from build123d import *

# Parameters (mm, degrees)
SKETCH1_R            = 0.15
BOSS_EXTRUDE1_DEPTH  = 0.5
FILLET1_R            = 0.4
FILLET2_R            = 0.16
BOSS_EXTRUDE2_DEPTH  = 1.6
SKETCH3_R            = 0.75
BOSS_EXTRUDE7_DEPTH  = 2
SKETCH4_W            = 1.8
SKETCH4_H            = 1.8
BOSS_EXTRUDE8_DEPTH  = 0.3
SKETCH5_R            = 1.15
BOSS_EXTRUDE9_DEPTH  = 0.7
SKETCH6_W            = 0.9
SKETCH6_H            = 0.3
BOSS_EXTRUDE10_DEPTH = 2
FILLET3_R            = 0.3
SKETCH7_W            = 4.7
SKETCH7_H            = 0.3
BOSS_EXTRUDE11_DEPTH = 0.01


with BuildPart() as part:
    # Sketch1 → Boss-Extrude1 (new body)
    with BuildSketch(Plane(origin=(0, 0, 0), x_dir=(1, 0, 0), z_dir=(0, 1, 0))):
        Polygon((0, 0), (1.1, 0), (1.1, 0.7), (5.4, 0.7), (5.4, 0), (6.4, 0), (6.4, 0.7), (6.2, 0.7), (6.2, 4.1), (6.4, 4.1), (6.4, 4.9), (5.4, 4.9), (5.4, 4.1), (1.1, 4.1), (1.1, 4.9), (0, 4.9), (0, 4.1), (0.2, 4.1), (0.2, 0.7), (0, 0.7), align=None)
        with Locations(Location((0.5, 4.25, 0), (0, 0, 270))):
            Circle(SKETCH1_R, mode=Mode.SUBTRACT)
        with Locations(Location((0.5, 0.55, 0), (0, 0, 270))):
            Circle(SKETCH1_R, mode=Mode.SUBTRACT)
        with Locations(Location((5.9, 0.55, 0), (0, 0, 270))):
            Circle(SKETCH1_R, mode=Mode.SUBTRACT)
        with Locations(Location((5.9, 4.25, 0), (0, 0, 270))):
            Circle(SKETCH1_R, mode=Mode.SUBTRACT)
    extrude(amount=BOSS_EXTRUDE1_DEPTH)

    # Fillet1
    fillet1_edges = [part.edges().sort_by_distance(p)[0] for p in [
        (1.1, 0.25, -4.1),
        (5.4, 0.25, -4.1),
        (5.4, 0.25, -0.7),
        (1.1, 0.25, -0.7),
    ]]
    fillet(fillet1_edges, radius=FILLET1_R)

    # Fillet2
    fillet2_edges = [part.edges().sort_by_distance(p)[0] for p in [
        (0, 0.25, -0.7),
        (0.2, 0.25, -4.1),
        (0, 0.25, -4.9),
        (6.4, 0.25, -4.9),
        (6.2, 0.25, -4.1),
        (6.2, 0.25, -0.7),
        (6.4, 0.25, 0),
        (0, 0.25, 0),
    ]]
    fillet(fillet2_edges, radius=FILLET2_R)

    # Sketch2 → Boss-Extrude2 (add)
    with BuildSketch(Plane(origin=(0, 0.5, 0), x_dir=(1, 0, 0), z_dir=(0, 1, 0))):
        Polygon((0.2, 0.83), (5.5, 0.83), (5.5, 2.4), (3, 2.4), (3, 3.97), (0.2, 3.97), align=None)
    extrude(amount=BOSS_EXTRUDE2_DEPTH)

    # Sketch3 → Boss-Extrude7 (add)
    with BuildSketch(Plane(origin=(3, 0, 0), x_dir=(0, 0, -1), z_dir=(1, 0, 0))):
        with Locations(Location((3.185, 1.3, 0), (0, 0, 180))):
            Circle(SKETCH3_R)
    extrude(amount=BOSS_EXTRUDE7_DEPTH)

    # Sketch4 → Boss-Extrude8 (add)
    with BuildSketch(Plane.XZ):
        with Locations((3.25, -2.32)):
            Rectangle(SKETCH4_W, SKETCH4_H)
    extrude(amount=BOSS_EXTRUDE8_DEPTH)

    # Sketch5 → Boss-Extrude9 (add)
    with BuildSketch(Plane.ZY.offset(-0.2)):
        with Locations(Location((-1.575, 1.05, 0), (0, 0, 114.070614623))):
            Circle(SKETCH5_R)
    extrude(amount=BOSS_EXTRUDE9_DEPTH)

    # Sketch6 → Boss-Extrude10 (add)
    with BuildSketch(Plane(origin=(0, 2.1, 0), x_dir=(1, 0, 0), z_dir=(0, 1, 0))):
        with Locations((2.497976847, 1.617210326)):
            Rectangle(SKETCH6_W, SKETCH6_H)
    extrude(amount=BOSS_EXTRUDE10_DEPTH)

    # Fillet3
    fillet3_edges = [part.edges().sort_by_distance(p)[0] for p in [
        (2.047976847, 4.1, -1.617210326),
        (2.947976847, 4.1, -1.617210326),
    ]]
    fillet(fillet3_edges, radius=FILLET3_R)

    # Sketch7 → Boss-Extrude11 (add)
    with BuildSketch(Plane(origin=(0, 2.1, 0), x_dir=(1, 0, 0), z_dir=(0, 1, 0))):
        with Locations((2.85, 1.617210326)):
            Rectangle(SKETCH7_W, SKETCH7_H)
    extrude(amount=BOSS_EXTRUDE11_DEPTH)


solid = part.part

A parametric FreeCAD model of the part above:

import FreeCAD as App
import Part
import Sketcher

V = App.Vector
Q = App.Units.Quantity


def edges_at(feature, points):
    """Names of the edges that pass closest to the given points."""
    edges = feature.Shape.Edges
    near = lambda p: min(range(len(edges)), key=lambda i: edges[i].distToShape(Part.Vertex(*p))[0])
    return sorted({f"Edge{near(p) + 1}" for p in points})

doc = App.newDocument("Part")
body = doc.addObject("PartDesign::Body", "Body")

sketch1 = doc.addObject("Sketcher::SketchObject", "Sketch")
body.addObject(sketch1)
sketch1.AttachmentSupport = (doc.XZ_Plane, [""])
sketch1.MapMode = "FlatFace"
sketch1.addGeometry([
    Part.LineSegment(V(0, 0, 0), V(1.1, 0, 0)),
    Part.LineSegment(V(1.1, 0, 0), V(1.1, -0.7, 0)),
    Part.LineSegment(V(1.1, -0.7, 0), V(5.4, -0.7, 0)),
    Part.LineSegment(V(5.4, -0.7, 0), V(5.4, 0, 0)),
    Part.LineSegment(V(5.4, 0, 0), V(6.4, 0, 0)),
    Part.LineSegment(V(6.4, 0, 0), V(6.4, -0.7, 0)),
    Part.LineSegment(V(6.4, -0.7, 0), V(6.2, -0.7, 0)),
    Part.LineSegment(V(6.2, -0.7, 0), V(6.2, -4.1, 0)),
    Part.LineSegment(V(6.2, -4.1, 0), V(6.4, -4.1, 0)),
    Part.LineSegment(V(6.4, -4.1, 0), V(6.4, -4.9, 0)),
    Part.LineSegment(V(6.4, -4.9, 0), V(5.4, -4.9, 0)),
    Part.LineSegment(V(5.4, -4.9, 0), V(5.4, -4.1, 0)),
    Part.LineSegment(V(5.4, -4.1, 0), V(1.1, -4.1, 0)),
    Part.LineSegment(V(1.1, -4.1, 0), V(1.1, -4.9, 0)),
    Part.LineSegment(V(1.1, -4.9, 0), V(0, -4.9, 0)),
    Part.LineSegment(V(0, -4.9, 0), V(0, -4.1, 0)),
    Part.LineSegment(V(0, -4.1, 0), V(0.2, -4.1, 0)),
    Part.LineSegment(V(0.2, -4.1, 0), V(0.2, -0.7, 0)),
    Part.LineSegment(V(0.2, -0.7, 0), V(0, -0.7, 0)),
    Part.LineSegment(V(0, -0.7, 0), V(0, 0, 0)),
    Part.Circle(V(0.5, -0.55, 0), V(0, 0, 1), 0.15),
    Part.Circle(V(5.9, -0.55, 0), V(0, 0, 1), 0.15),
    Part.Circle(V(0.5, -4.25, 0), V(0, 0, 1), 0.15),
    Part.Circle(V(5.9, -4.25, 0), V(0, 0, 1), 0.15),
], False)
sketch1.addConstraint([
    Sketcher.Constraint("Coincident", 0, 2, 1, 1),
    Sketcher.Constraint("Coincident", 1, 2, 2, 1),
    Sketcher.Constraint("Coincident", 2, 2, 3, 1),
    Sketcher.Constraint("Coincident", 3, 2, 4, 1),
    Sketcher.Constraint("Coincident", 4, 2, 5, 1),
    Sketcher.Constraint("Coincident", 5, 2, 6, 1),
    Sketcher.Constraint("Coincident", 6, 2, 7, 1),
    Sketcher.Constraint("Coincident", 7, 2, 8, 1),
    Sketcher.Constraint("Coincident", 8, 2, 9, 1),
    Sketcher.Constraint("Coincident", 9, 2, 10, 1),
    Sketcher.Constraint("Coincident", 10, 2, 11, 1),
    Sketcher.Constraint("Coincident", 11, 2, 12, 1),
    Sketcher.Constraint("Coincident", 12, 2, 13, 1),
    Sketcher.Constraint("Coincident", 13, 2, 14, 1),
    Sketcher.Constraint("Coincident", 14, 2, 15, 1),
    Sketcher.Constraint("Coincident", 15, 2, 16, 1),
    Sketcher.Constraint("Coincident", 16, 2, 17, 1),
    Sketcher.Constraint("Coincident", 17, 2, 18, 1),
    Sketcher.Constraint("Coincident", 18, 2, 19, 1),
    Sketcher.Constraint("Coincident", 19, 2, 0, 1),
    Sketcher.Constraint("Horizontal", 0),
    Sketcher.Constraint("Vertical", 1),
    Sketcher.Constraint("Horizontal", 2),
    Sketcher.Constraint("Vertical", 3),
    Sketcher.Constraint("Horizontal", 4),
    Sketcher.Constraint("Vertical", 5),
    Sketcher.Constraint("Horizontal", 6),
    Sketcher.Constraint("Vertical", 7),
    Sketcher.Constraint("Horizontal", 8),
    Sketcher.Constraint("Vertical", 9),
    Sketcher.Constraint("Horizontal", 10),
    Sketcher.Constraint("Vertical", 11),
    Sketcher.Constraint("Horizontal", 12),
    Sketcher.Constraint("Vertical", 13),
    Sketcher.Constraint("Horizontal", 14),
    Sketcher.Constraint("Vertical", 15),
    Sketcher.Constraint("Horizontal", 16),
    Sketcher.Constraint("Vertical", 17),
    Sketcher.Constraint("Horizontal", 18),
    Sketcher.Constraint("Vertical", 19),
    Sketcher.Constraint("Coincident", 19, 2, -1, 1),
    Sketcher.Constraint("Equal", 20, 21),
    Sketcher.Constraint("Equal", 21, 22),
    Sketcher.Constraint("Equal", 22, 23),
    Sketcher.Constraint("PointOnObject", 3, 2, -1),
    Sketcher.Constraint("PointOnObject", 14, 2, -2),
    Sketcher.Constraint("Horizontal", 20, 3, 21, 3),
    Sketcher.Constraint("Horizontal", 22, 3, 23, 3),
    Sketcher.Constraint("Horizontal", 2, 2, 5, 2),
    Sketcher.Constraint("Horizontal", 8, 2, 11, 2),
    Sketcher.Constraint("Horizontal", 10, 2, 13, 2),
    Sketcher.Constraint("Horizontal", 12, 2, 15, 2),
    Sketcher.Constraint("Horizontal", 6, 2, 17, 2),
    Sketcher.Constraint("Vertical", 20, 3, 22, 3),
    Sketcher.Constraint("Vertical", 21, 3, 23, 3),
    Sketcher.Constraint("Vertical", 5, 2, 8, 2),
    Sketcher.Constraint("Vertical", 3, 2, 10, 2),
    Sketcher.Constraint("Vertical", 1, 2, 12, 2),
    Sketcher.Constraint("Equal", 8, 16),
    Sketcher.Constraint("Diameter", 20, Q("0.3 mm")),
    Sketcher.Constraint("DistanceX", 4, 1, 4, 2, Q("1 mm")),
    Sketcher.Constraint("DistanceX", 0, 1, 0, 2, Q("1.1 mm")),
    Sketcher.Constraint("DistanceX", 2, 1, 2, 2, Q("4.3 mm")),
    Sketcher.Constraint("DistanceX", 6, 2, 6, 1, Q("0.2 mm")),
    Sketcher.Constraint("DistanceY", 1, 2, 1, 1, Q("0.7 mm")),
    Sketcher.Constraint("DistanceY", 7, 2, 7, 1, Q("3.4 mm")),
    Sketcher.Constraint("DistanceY", 9, 2, 9, 1, Q("0.8 mm")),
    Sketcher.Constraint("DistanceX", -1, 1, 20, 3, Q("0.5 mm")),
    Sketcher.Constraint("DistanceX", -1, 1, 21, 3, Q("5.9 mm")),
    Sketcher.Constraint("DistanceY", 22, 3, 20, 3, Q("3.7 mm")),
    Sketcher.Constraint("DistanceY", 20, 3, -1, 1, Q("0.55 mm")),
])
pad1 = doc.addObject("PartDesign::Pad", "Pad")
body.addObject(pad1)
pad1.Profile = sketch1
pad1.Length = 0.5
pad1.Reversed = True
doc.recompute()

fillet = doc.addObject("PartDesign::Fillet", "Fillet")
body.addObject(fillet)
fillet.Base = (pad1, edges_at(pad1, [
    (1.1, 0.25, -4.1),
    (5.4, 0.25, -4.1),
    (5.4, 0.25, -0.7),
    (1.1, 0.25, -0.7),
]))
fillet.Radius = 0.4
doc.recompute()

fillet2 = doc.addObject("PartDesign::Fillet", "Fillet001")
body.addObject(fillet2)
fillet2.Base = (fillet, edges_at(fillet, [
    (0, 0.25, -0.7),
    (0.2, 0.25, -4.1),
    (0, 0.25, -4.9),
    (6.4, 0.25, -4.9),
    (6.2, 0.25, -4.1),
    (6.2, 0.25, -0.7),
    (6.4, 0.25, 0),
    (0, 0.25, 0),
]))
fillet2.Radius = 0.16

sketch2 = doc.addObject("Sketcher::SketchObject", "Sketch001")
body.addObject(sketch2)
sketch2.AttachmentSupport = (doc.XZ_Plane, [""])
sketch2.MapMode = "FlatFace"
sketch2.AttachmentOffset = App.Placement(V(0, 0, -0.5), App.Rotation())
sketch2.addGeometry([
    Part.LineSegment(V(0.2, -0.8, 0), V(5.5, -0.8, 0)),
    Part.LineSegment(V(5.5, -0.8, 0), V(5.5, -2.4, 0)),
    Part.LineSegment(V(5.5, -2.4, 0), V(3, -2.4, 0)),
    Part.LineSegment(V(3, -2.4, 0), V(3, -4, 0)),
    Part.LineSegment(V(3, -4, 0), V(0.2, -4, 0)),
    Part.LineSegment(V(0.2, -4, 0), V(0.2, -0.8, 0)),
], False)
sketch2.addConstraint([
    Sketcher.Constraint("Coincident", 0, 2, 1, 1),
    Sketcher.Constraint("Coincident", 1, 2, 2, 1),
    Sketcher.Constraint("Coincident", 2, 2, 3, 1),
    Sketcher.Constraint("Coincident", 3, 2, 4, 1),
    Sketcher.Constraint("Coincident", 4, 2, 5, 1),
    Sketcher.Constraint("Coincident", 5, 2, 0, 1),
    Sketcher.Constraint("Horizontal", 0),
    Sketcher.Constraint("Vertical", 1),
    Sketcher.Constraint("Horizontal", 2),
    Sketcher.Constraint("Vertical", 3),
    Sketcher.Constraint("Horizontal", 4),
    Sketcher.Constraint("Vertical", 5),
    Sketcher.Constraint("Equal", 1, 3),
    Sketcher.Constraint("DistanceX", 0, 1, 0, 2, Q("5.3 mm")),
    Sketcher.Constraint("DistanceX", 2, 2, 2, 1, Q("2.5 mm")),
    Sketcher.Constraint("DistanceX", -1, 1, 2, 2, Q("3 mm")),
    Sketcher.Constraint("DistanceY", 1, 2, 1, 1, Q("1.57 mm")),
    Sketcher.Constraint("DistanceY", 1, 2, -1, 1, Q("2.4 mm")),
])
pad2 = doc.addObject("PartDesign::Pad", "Pad001")
body.addObject(pad2)
pad2.Profile = sketch2
pad2.Length = 1.6
pad2.Reversed = True

sketch3 = doc.addObject("Sketcher::SketchObject", "Sketch002")
body.addObject(sketch3)
sketch3.AttachmentSupport = (doc.YZ_Plane, [""])
sketch3.MapMode = "FlatFace"
sketch3.AttachmentOffset = App.Placement(V(0, 0, 3), App.Rotation())
sketch3.addGeometry(Part.Circle(V(1.3, -3.2, 0), V(0, 0, 1), 0.8), False)
sketch3.addConstraint([
    Sketcher.Constraint("Diameter", 0, Q("1.5 mm")),
    Sketcher.Constraint("DistanceX", -1, 1, 0, 3, Q("1.3 mm")),
    Sketcher.Constraint("DistanceY", 0, 3, -1, 1, Q("3.185 mm")),
])
pad3 = doc.addObject("PartDesign::Pad", "Pad002")
body.addObject(pad3)
pad3.Profile = sketch3
pad3.Length = 2

sketch4 = doc.addObject("Sketcher::SketchObject", "Sketch003")
body.addObject(sketch4)
sketch4.AttachmentSupport = (doc.XZ_Plane, [""])
sketch4.MapMode = "FlatFace"
sketch4.addGeometry([
    Part.LineSegment(V(2.4, -1.4, 0), V(2.4, -3.2, 0)),
    Part.LineSegment(V(2.4, -3.2, 0), V(4.2, -3.2, 0)),
    Part.LineSegment(V(4.2, -3.2, 0), V(4.2, -1.4, 0)),
    Part.LineSegment(V(4.2, -1.4, 0), V(2.4, -1.4, 0)),
], False)
sketch4.addConstraint([
    Sketcher.Constraint("Coincident", 0, 2, 1, 1),
    Sketcher.Constraint("Coincident", 1, 2, 2, 1),
    Sketcher.Constraint("Coincident", 2, 2, 3, 1),
    Sketcher.Constraint("Coincident", 3, 2, 0, 1),
    Sketcher.Constraint("Vertical", 0),
    Sketcher.Constraint("Horizontal", 1),
    Sketcher.Constraint("Vertical", 2),
    Sketcher.Constraint("Horizontal", 3),
    Sketcher.Constraint("Equal", 3, 0),
    Sketcher.Constraint("DistanceX", 1, 1, 1, 2, Q("1.8 mm")),
    Sketcher.Constraint("DistanceX", -1, 1, 0, 2, Q("2.35 mm")),
    Sketcher.Constraint("DistanceY", 0, 2, -1, 1, Q("3.22 mm")),
])
pad4 = doc.addObject("PartDesign::Pad", "Pad003")
body.addObject(pad4)
pad4.Profile = sketch4
pad4.Length = 0.3

sketch5 = doc.addObject("Sketcher::SketchObject", "Sketch004")
body.addObject(sketch5)
sketch5.AttachmentSupport = (doc.YZ_Plane, [""])
sketch5.MapMode = "FlatFace"
sketch5.AttachmentOffset = App.Placement(V(0, 0, 0.2), App.Rotation())
sketch5.addGeometry(Part.Circle(V(1.1, -1.6, 0), V(0, 0, 1), 1.1), False)
sketch5.addConstraint([
    Sketcher.Constraint("Diameter", 0, Q("2.3 mm")),
    Sketcher.Constraint("DistanceX", -1, 1, 0, 3, Q("1.05 mm")),
    Sketcher.Constraint("DistanceY", 0, 3, -1, 1, Q("1.575 mm")),
])
pad5 = doc.addObject("PartDesign::Pad", "Pad004")
body.addObject(pad5)
pad5.Profile = sketch5
pad5.Length = 0.7
pad5.Reversed = True

sketch6 = doc.addObject("Sketcher::SketchObject", "Sketch005")
body.addObject(sketch6)
sketch6.AttachmentSupport = (doc.XZ_Plane, [""])
sketch6.MapMode = "FlatFace"
sketch6.AttachmentOffset = App.Placement(V(0, 0, -2.1), App.Rotation())
sketch6.addGeometry([
    Part.LineSegment(V(2.05, -1.77, 0), V(2.05, -1.47, 0)),
    Part.LineSegment(V(2.05, -1.47, 0), V(2.95, -1.47, 0)),
    Part.LineSegment(V(2.95, -1.47, 0), V(2.95, -1.77, 0)),
    Part.LineSegment(V(2.95, -1.77, 0), V(2.05, -1.77, 0)),
], False)
sketch6.addConstraint([
    Sketcher.Constraint("Coincident", 0, 2, 1, 1),
    Sketcher.Constraint("Coincident", 1, 2, 2, 1),
    Sketcher.Constraint("Coincident", 2, 2, 3, 1),
    Sketcher.Constraint("Coincident", 3, 2, 0, 1),
    Sketcher.Constraint("Vertical", 0),
    Sketcher.Constraint("Horizontal", 1),
    Sketcher.Constraint("Vertical", 2),
    Sketcher.Constraint("Horizontal", 3),
    Sketcher.Constraint("DistanceX", 1, 1, 1, 2, Q("0.9 mm")),
    Sketcher.Constraint("DistanceY", 0, 1, 0, 2, Q("0.3 mm")),
    Sketcher.Constraint("DistanceY", 0, 2, -1, 1, Q("1.46721 mm")),
    Sketcher.Constraint("DistanceX", -1, 1, 0, 2, Q("2.047977 mm")),
])
pad6 = doc.addObject("PartDesign::Pad", "Pad005")
body.addObject(pad6)
pad6.Profile = sketch6
pad6.Length = 2
pad6.Reversed = True
doc.recompute()

fillet3 = doc.addObject("PartDesign::Fillet", "Fillet002")
body.addObject(fillet3)
fillet3.Base = (pad6, edges_at(pad6, [(2.048, 4.1, -1.617), (2.948, 4.1, -1.617)]))
fillet3.Radius = 0.3

sketch7 = doc.addObject("Sketcher::SketchObject", "Sketch006")
body.addObject(sketch7)
sketch7.AttachmentSupport = (doc.XZ_Plane, [""])
sketch7.MapMode = "FlatFace"
sketch7.AttachmentOffset = App.Placement(V(0, 0, -2.1), App.Rotation())
sketch7.addGeometry([
    Part.LineSegment(V(0.5, -1.77, 0), V(0.5, -1.47, 0)),
    Part.LineSegment(V(0.5, -1.47, 0), V(5.2, -1.47, 0)),
    Part.LineSegment(V(5.2, -1.47, 0), V(5.2, -1.77, 0)),
    Part.LineSegment(V(5.2, -1.77, 0), V(0.5, -1.77, 0)),
], False)
sketch7.addConstraint([
    Sketcher.Constraint("Coincident", 0, 2, 1, 1),
    Sketcher.Constraint("Coincident", 1, 2, 2, 1),
    Sketcher.Constraint("Coincident", 2, 2, 3, 1),
    Sketcher.Constraint("Coincident", 3, 2, 0, 1),
    Sketcher.Constraint("Vertical", 0),
    Sketcher.Constraint("Horizontal", 1),
    Sketcher.Constraint("Vertical", 2),
    Sketcher.Constraint("Horizontal", 3),
    Sketcher.Constraint("DistanceX", 1, 1, 1, 2, Q("4.7 mm")),
    Sketcher.Constraint("DistanceY", 0, 1, 0, 2, Q("0.3 mm")),
    Sketcher.Constraint("DistanceX", -1, 1, 0, 2, Q("0.5 mm")),
    Sketcher.Constraint("DistanceY", 0, 2, -1, 1, Q("1.46721 mm")),
])
pad7 = doc.addObject("PartDesign::Pad", "Pad006")
body.addObject(pad7)
pad7.Profile = sketch7
pad7.Length = 0.01
pad7.Reversed = True

doc.recompute()
